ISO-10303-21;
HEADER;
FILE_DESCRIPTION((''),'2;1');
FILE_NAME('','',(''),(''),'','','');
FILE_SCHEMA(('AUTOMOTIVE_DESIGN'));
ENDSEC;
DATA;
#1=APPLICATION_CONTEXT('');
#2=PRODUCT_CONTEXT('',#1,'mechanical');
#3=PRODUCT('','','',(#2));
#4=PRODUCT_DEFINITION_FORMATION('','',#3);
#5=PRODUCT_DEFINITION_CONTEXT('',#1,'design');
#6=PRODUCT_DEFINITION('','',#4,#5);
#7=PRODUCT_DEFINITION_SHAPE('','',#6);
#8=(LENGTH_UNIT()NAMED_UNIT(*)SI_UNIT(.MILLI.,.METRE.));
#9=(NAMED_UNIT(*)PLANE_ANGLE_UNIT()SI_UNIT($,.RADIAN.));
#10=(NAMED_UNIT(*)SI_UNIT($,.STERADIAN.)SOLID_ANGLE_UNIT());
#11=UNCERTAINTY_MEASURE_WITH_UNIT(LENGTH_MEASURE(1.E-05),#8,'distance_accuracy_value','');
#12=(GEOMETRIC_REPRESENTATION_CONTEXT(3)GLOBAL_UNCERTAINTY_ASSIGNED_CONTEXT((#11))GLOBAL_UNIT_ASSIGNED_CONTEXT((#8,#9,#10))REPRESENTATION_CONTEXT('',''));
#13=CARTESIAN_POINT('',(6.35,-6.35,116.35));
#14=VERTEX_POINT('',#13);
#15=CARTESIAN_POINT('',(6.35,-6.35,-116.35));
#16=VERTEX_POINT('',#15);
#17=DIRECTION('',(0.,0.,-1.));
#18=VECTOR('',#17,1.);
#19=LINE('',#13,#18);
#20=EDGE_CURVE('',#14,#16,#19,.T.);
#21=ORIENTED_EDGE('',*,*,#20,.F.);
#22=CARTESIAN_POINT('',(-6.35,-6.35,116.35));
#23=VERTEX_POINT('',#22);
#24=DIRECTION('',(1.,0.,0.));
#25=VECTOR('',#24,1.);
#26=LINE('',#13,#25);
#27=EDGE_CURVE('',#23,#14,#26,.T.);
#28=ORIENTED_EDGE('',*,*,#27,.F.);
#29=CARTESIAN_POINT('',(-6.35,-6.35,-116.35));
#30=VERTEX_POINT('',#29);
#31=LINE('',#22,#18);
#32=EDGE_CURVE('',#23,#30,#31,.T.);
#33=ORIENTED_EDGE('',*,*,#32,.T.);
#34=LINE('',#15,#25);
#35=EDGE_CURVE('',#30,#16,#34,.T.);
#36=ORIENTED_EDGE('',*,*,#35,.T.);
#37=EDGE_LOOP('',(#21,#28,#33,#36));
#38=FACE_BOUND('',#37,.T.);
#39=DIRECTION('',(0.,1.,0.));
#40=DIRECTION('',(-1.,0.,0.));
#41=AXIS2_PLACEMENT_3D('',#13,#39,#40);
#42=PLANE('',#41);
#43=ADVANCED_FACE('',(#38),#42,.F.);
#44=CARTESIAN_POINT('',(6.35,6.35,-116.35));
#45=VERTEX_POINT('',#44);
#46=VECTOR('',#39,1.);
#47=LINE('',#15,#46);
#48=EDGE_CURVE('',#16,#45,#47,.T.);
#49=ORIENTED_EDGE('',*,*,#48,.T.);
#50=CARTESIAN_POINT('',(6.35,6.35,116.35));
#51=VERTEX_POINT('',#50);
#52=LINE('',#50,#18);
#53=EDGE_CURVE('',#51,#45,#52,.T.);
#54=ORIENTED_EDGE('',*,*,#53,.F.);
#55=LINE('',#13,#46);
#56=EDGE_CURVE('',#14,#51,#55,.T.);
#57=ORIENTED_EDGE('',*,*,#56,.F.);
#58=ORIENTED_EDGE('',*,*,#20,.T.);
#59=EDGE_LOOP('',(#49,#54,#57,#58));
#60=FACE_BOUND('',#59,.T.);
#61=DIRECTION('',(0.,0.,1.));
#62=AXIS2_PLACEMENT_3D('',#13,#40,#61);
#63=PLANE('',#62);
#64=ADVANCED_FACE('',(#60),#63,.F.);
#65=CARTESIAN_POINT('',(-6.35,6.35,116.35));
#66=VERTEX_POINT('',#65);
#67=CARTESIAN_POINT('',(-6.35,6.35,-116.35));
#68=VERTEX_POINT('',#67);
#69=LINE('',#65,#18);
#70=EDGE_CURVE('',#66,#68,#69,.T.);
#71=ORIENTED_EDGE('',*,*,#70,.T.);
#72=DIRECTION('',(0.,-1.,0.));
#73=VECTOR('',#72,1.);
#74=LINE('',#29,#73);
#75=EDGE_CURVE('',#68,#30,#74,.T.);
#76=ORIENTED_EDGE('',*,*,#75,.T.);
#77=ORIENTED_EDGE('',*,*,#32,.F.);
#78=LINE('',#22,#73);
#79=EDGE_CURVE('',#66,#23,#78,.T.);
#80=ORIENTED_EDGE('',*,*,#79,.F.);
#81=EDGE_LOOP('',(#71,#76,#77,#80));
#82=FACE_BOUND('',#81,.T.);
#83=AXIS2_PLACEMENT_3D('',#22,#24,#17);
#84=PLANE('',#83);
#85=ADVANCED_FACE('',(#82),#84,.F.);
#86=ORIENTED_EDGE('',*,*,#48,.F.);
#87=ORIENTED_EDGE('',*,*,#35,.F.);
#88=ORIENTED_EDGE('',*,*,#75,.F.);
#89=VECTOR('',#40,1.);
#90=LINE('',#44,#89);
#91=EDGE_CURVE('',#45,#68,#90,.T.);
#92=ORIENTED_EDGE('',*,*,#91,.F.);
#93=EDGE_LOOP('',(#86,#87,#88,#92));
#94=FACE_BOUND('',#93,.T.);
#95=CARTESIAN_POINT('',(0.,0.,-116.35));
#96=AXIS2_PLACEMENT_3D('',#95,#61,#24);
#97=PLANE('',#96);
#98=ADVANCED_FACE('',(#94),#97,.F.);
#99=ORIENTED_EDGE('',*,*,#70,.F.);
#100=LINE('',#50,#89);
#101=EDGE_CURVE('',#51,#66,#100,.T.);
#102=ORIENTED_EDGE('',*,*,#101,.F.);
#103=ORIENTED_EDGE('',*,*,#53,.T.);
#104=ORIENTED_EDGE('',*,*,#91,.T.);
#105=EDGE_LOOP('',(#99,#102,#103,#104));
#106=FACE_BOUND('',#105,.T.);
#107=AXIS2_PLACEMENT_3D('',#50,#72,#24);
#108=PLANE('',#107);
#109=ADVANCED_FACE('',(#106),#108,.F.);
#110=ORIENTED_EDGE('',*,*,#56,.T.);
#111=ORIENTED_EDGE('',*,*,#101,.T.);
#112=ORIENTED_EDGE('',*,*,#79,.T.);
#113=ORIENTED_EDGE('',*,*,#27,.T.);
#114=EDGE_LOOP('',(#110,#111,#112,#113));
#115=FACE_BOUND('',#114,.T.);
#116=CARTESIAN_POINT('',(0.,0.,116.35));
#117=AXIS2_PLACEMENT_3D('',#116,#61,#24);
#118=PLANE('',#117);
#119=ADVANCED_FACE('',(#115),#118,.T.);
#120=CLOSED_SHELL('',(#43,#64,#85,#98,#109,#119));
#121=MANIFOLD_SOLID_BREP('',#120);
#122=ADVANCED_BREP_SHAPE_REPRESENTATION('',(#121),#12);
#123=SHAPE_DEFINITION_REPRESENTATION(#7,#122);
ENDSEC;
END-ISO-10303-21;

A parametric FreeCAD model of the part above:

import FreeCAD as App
import Part
import Sketcher

V = App.Vector
Q = App.Units.Quantity


def add_polygon(sketch, points):
    """Adds a closed chain of lines whose ends are joined by coincident constraints."""
    first, n = sketch.GeometryCount, len(points)
    for a, b in zip(points, points[1:] + points[:1]):
        sketch.addGeometry(Part.LineSegment(App.Vector(*a, 0), App.Vector(*b, 0)), False)
    for i in range(n):
        sketch.addConstraint(Sketcher.Constraint("Coincident", first + i, 2, first + (i + 1) % n, 1))

doc = App.newDocument("Part")
body = doc.addObject("PartDesign::Body", "Body")

# Sketch on XY plane
sketch1 = body.newObject("Sketcher::SketchObject", "Sketch")
sketch1.AttachmentSupport = (doc.getObject("XY_Plane"), [""])
sketch1.MapMode = "FlatFace"
add_polygon(sketch1, [(-6, 6), (-6, -6), (6, -6), (6, 6)])  # lines 0-3
sketch1.addConstraint(Sketcher.Constraint("Vertical", 0))
sketch1.addConstraint(Sketcher.Constraint("Horizontal", 1))
sketch1.addConstraint(Sketcher.Constraint("Vertical", 2))
sketch1.addConstraint(Sketcher.Constraint("Horizontal", 3))
sketch1.addConstraint(Sketcher.Constraint("Symmetric", 0, 2, 2, 2, -1, 1))
sketch1.addConstraint(Sketcher.Constraint("Equal", 3, 0))
sketch1.addConstraint(Sketcher.Constraint("DistanceX", 1, 1, 1, 2, Q("0.5 in")))
pad1 = body.newObject("PartDesign::Pad", "Pad")
pad1.Profile = sketch1
pad1.Length = 232.7
pad1.Midplane = True

doc.recompute()
